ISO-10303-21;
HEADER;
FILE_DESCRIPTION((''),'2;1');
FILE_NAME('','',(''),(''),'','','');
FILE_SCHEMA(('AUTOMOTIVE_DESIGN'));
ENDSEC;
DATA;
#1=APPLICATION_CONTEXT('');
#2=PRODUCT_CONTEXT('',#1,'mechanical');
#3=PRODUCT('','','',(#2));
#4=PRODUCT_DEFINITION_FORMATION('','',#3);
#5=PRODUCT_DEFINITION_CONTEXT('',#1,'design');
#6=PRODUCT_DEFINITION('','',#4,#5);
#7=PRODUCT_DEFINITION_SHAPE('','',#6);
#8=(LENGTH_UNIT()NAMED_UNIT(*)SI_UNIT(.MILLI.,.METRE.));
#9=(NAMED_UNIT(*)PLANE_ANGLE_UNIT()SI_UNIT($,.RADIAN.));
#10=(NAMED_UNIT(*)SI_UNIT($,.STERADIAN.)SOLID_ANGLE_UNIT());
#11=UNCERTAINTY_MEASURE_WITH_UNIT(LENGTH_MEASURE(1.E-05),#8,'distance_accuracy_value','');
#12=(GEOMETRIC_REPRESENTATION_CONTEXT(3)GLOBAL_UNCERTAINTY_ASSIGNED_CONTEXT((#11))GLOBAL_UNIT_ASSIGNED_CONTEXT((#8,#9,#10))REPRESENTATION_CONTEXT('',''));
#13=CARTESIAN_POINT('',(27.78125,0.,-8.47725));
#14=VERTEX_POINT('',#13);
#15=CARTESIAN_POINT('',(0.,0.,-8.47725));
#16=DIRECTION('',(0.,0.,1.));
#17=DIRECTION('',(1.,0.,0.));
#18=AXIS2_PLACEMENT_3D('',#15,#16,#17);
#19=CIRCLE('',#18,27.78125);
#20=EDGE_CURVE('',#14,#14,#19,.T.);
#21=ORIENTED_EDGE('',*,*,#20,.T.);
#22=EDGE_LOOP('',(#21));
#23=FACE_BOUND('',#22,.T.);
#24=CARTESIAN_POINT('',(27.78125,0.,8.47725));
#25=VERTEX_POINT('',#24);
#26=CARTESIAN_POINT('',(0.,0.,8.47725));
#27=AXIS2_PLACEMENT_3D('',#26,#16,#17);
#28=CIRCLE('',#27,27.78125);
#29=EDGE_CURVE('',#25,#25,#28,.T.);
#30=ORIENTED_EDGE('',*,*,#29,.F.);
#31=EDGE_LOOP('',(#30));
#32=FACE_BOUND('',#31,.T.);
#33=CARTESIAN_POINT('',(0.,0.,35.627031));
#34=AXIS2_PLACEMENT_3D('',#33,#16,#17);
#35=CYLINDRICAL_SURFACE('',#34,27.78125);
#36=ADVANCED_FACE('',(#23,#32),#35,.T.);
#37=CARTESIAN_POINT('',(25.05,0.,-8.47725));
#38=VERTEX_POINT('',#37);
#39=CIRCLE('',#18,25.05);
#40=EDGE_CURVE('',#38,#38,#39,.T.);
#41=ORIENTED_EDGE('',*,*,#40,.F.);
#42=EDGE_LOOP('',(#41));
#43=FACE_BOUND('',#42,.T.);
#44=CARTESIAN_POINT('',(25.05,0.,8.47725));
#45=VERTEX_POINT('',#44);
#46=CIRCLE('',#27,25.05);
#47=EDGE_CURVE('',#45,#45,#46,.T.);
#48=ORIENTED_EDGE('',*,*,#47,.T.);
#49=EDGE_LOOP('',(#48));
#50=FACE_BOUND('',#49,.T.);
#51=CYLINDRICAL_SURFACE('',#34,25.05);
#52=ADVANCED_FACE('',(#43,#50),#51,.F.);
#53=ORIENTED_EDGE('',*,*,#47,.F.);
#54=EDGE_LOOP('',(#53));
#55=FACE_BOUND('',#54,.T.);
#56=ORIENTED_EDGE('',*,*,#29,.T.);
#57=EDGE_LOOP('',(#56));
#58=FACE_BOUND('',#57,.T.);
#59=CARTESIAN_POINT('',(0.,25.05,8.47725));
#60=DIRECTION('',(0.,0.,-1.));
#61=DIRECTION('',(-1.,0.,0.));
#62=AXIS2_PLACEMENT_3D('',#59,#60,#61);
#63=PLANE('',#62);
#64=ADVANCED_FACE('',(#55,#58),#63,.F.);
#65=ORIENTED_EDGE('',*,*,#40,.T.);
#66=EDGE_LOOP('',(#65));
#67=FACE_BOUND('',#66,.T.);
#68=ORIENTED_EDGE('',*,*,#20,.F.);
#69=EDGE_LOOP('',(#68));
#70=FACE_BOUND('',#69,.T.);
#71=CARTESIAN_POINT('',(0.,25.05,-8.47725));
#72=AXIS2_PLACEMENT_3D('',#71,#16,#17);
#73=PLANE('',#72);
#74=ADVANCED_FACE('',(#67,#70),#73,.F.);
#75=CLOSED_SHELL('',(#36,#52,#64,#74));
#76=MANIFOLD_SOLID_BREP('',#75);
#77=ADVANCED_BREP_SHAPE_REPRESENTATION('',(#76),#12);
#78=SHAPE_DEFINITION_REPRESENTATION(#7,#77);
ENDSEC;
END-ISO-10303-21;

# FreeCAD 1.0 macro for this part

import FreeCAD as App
import Part
import Sketcher

V = App.Vector

doc = App.newDocument("Part")
body = doc.addObject("PartDesign::Body", "Body")

sketch1 = doc.addObject("Sketcher::SketchObject", "Sketch")
body.addObject(sketch1)
sketch1.AttachmentSupport = (doc.YZ_Plane, [""])
sketch1.MapMode = "FlatFace"
sketch1.addGeometry([
    Part.LineSegment(V(27.8, 8.5, 0), V(25.1, 8.5, 0)),
    Part.LineSegment(V(25.1, 8.5, 0), V(25.1, -8.5, 0)),
    Part.LineSegment(V(25.1, -8.5, 0), V(27.8, -8.5, 0)),
    Part.LineSegment(V(27.8, -8.5, 0), V(27.8, 8.5, 0)),
], False)
sketch1.addConstraint([
    Sketcher.Constraint("Coincident", 0, 2, 1, 1),
    Sketcher.Constraint("Coincident", 1, 2, 2, 1),
    Sketcher.Constraint("Coincident", 2, 2, 3, 1),
    Sketcher.Constraint("Coincident", 3, 2, 0, 1),
    Sketcher.Constraint("Horizontal", 0),
    Sketcher.Constraint("Vertical", 1),
    Sketcher.Constraint("Horizontal", 2),
    Sketcher.Constraint("Vertical", 3),
    Sketcher.Constraint("DistanceX", -1, 1, 0, 2, 25.05),
    Sketcher.Constraint("DistanceY", 1, 2, 1, 1, 16.9545),
    Sketcher.Constraint("DistanceX", 0, 2, 0, 1, 2.73125),
    Sketcher.Constraint("DistanceY", -1, 1, 0, 2, 8.47725),
])
revolution = doc.addObject("PartDesign::Revolution", "Revolution")
body.addObject(revolution)
revolution.Profile = sketch1
revolution.ReferenceAxis = (sketch1, ["V_Axis"])
revolution.Angle = 360

doc.recompute()
